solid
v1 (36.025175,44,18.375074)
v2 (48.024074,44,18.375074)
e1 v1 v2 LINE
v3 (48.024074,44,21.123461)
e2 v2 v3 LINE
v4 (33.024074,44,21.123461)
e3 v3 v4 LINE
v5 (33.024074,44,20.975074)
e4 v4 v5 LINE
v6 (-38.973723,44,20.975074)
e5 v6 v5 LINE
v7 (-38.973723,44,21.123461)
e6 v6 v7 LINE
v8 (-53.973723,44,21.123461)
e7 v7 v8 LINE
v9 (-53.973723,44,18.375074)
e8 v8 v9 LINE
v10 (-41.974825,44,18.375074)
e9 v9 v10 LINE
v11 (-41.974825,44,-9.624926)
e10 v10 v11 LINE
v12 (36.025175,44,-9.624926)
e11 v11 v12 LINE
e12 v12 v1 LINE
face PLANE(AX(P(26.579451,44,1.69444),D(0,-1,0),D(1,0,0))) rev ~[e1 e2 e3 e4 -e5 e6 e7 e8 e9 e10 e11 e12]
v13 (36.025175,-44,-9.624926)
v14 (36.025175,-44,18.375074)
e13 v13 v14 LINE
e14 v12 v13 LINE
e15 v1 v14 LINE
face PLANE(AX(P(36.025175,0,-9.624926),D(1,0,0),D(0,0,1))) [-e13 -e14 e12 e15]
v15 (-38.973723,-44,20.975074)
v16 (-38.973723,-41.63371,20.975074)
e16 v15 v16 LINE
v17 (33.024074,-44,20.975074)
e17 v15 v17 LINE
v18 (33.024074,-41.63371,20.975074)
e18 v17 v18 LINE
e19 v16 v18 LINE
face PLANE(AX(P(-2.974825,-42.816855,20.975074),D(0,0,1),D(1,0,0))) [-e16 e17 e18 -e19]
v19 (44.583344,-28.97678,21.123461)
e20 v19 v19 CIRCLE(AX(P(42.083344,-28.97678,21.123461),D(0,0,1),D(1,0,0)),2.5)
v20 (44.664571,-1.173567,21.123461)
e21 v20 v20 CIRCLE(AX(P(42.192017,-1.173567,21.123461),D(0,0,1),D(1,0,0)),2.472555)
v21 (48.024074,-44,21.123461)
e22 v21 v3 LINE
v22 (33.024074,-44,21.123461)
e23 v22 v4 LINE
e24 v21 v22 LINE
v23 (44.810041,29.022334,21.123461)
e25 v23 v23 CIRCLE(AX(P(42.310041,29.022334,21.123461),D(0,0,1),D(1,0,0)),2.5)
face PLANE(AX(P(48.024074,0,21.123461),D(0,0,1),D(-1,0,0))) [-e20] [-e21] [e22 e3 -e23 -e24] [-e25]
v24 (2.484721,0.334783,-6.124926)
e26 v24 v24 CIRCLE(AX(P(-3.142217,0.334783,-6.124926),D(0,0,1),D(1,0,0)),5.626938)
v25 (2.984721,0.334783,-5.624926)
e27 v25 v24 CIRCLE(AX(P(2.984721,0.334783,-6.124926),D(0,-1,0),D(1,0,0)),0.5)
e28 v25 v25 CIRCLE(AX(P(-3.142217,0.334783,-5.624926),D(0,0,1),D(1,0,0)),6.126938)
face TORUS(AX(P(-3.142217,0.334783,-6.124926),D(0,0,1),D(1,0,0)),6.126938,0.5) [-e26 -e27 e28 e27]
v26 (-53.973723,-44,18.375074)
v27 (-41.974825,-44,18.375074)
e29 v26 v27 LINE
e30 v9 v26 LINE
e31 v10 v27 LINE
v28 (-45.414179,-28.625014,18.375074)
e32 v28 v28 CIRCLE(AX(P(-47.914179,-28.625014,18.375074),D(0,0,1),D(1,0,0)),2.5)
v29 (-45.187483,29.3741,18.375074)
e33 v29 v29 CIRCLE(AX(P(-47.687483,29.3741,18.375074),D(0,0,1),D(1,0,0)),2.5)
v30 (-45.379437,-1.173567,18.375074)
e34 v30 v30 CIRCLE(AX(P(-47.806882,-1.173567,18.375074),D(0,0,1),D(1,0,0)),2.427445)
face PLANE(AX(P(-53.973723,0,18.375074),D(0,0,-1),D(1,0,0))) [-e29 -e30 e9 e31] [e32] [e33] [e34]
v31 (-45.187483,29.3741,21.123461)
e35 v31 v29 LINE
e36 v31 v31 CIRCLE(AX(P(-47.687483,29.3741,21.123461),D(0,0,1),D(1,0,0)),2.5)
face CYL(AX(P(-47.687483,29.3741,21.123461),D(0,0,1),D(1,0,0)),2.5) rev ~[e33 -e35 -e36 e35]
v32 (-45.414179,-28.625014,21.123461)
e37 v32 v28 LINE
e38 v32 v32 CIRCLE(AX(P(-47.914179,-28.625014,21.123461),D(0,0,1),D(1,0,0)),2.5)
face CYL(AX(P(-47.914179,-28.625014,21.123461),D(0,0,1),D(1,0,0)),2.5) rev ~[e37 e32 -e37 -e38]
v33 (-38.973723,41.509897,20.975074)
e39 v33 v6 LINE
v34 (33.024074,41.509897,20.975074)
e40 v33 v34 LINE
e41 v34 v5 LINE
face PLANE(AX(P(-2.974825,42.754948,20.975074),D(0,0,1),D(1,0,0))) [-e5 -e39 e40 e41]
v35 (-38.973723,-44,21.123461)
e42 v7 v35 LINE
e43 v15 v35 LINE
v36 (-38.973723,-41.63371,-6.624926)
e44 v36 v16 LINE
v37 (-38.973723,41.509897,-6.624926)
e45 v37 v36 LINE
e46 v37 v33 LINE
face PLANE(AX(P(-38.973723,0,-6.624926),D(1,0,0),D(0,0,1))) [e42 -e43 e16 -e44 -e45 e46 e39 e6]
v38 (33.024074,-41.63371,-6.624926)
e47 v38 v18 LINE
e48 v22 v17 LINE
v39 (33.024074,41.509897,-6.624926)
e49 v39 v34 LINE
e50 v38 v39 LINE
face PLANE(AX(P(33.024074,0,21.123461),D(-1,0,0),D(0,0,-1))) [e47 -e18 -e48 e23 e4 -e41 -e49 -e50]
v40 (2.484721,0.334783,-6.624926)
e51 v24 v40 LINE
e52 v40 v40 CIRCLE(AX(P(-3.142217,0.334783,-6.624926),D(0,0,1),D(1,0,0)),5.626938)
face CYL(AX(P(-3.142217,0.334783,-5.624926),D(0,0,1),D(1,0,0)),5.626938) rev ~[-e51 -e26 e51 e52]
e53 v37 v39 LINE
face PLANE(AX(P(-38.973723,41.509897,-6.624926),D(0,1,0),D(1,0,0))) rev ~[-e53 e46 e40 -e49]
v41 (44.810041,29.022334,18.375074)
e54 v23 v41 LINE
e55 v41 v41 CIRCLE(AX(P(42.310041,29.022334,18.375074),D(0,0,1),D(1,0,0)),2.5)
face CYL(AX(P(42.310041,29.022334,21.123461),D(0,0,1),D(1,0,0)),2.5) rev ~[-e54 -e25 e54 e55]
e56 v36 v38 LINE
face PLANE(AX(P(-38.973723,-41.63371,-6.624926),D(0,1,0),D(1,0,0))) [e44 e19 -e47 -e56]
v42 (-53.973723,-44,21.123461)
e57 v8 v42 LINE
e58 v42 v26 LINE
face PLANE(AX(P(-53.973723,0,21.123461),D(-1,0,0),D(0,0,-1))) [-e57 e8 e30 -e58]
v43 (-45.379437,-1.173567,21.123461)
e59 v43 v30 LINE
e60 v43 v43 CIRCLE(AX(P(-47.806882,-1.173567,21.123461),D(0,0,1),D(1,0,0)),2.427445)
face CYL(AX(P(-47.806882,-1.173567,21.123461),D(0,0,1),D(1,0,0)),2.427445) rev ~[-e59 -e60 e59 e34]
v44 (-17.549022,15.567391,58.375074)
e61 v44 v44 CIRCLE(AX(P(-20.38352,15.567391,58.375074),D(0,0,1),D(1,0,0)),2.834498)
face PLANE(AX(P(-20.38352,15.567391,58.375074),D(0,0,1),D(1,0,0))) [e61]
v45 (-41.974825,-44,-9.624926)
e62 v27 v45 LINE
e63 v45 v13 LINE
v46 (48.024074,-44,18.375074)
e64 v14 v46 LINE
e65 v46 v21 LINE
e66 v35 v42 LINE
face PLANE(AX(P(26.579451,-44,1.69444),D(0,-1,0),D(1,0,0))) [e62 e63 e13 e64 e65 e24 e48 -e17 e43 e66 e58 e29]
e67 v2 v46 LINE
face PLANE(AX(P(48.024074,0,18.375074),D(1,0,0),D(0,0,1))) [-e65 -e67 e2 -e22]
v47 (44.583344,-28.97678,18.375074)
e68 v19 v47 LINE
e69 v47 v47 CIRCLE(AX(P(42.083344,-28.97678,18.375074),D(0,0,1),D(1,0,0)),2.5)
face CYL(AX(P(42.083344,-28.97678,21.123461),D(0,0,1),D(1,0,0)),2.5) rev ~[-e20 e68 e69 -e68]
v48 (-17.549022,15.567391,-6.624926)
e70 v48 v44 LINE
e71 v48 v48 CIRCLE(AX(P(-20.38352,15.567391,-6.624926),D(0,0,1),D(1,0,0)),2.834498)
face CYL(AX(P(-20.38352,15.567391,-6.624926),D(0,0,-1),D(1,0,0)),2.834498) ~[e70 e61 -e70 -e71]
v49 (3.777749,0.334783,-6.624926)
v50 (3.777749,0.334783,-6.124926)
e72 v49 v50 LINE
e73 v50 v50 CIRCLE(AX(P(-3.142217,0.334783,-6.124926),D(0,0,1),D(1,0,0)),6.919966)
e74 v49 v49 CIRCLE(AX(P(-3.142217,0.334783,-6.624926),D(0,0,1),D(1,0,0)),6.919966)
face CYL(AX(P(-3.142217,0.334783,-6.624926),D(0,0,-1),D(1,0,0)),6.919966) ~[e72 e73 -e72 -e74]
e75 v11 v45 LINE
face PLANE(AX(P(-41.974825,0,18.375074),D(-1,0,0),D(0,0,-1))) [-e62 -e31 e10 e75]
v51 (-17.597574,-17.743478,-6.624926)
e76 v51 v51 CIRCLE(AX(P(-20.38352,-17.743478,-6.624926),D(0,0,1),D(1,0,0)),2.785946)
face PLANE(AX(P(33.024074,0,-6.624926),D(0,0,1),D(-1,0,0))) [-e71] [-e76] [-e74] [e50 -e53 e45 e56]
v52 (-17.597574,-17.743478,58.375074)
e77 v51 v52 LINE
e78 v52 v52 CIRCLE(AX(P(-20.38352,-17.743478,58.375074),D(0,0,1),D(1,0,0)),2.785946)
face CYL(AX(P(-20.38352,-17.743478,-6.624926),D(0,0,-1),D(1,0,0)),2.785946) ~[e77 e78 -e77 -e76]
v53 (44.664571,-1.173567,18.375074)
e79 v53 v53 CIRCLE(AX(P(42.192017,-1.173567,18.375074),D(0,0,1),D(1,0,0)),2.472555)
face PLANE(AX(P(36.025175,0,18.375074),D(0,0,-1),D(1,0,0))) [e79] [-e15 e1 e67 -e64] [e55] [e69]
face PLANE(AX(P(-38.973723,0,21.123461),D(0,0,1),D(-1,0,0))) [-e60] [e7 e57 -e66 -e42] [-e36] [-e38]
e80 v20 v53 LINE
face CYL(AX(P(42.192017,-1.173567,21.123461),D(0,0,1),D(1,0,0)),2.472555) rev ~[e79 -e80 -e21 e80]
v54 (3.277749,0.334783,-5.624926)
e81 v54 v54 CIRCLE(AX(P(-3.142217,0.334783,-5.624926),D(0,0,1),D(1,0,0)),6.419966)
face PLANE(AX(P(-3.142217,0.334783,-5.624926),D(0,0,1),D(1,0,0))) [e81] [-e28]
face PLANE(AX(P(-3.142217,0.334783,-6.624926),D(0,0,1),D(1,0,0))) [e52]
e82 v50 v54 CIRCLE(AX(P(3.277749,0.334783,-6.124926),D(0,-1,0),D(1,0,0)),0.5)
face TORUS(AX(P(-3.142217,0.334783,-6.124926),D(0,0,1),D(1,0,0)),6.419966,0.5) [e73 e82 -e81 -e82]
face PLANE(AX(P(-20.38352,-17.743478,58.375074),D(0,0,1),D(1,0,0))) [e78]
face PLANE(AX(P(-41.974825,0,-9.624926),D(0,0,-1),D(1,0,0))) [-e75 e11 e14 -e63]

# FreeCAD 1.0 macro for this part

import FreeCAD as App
import Part
import Sketcher
Q = App.Units.Quantity


def edges_at(feature, points):
    """Names of the edges that pass closest to the given points."""
    edges = feature.Shape.Edges
    near = lambda p: min(range(len(edges)), key=lambda i: edges[i].distToShape(Part.Vertex(*p))[0])
    return sorted({f"Edge{near(p) + 1}" for p in points})

doc = App.newDocument("Part")
body = doc.addObject("PartDesign::Body", "Body")

# Sketch on XZ plane
sketch1 = body.newObject("Sketcher::SketchObject", "Sketch")
sketch1.AttachmentSupport = (doc.getObject("XZ_Plane"), [""])
sketch1.MapMode = "FlatFace"
sketch1.addGeometry(Part.LineSegment(App.Vector(33, -6.6, 0), App.Vector(-39, -6.6, 0)), False)
sketch1.addGeometry(Part.LineSegment(App.Vector(-39, -6.6, 0), App.Vector(-39, 21.1, 0)), False)
sketch1.addGeometry(Part.LineSegment(App.Vector(-39, 21.1, 0), App.Vector(-54, 21.1, 0)), False)
sketch1.addGeometry(Part.LineSegment(App.Vector(-54, 21.1, 0), App.Vector(-54, 18.4, 0)), False)
sketch1.addGeometry(Part.LineSegment(App.Vector(-54, 18.4, 0), App.Vector(-42, 18.4, 0)), False)
sketch1.addGeometry(Part.LineSegment(App.Vector(-42, 18.4, 0), App.Vector(-42, -9.6, 0)), False)
sketch1.addGeometry(Part.LineSegment(App.Vector(-42, -9.6, 0), App.Vector(36, -9.6, 0)), False)
sketch1.addGeometry(Part.LineSegment(App.Vector(36, -9.6, 0), App.Vector(36, 18.4, 0)), False)
sketch1.addGeometry(Part.LineSegment(App.Vector(36, 18.4, 0), App.Vector(48, 18.4, 0)), False)
sketch1.addGeometry(Part.LineSegment(App.Vector(48, 18.4, 0), App.Vector(48, 21.1, 0)), False)
sketch1.addGeometry(Part.LineSegment(App.Vector(48, 21.1, 0), App.Vector(33, 21.1, 0)), False)
sketch1.addGeometry(Part.LineSegment(App.Vector(33, 21.1, 0), App.Vector(33, -6.6, 0)), False)
sketch1.addConstraint(Sketcher.Constraint("Coincident", 0, 2, 1, 1))
sketch1.addConstraint(Sketcher.Constraint("Coincident", 1, 2, 2, 1))
sketch1.addConstraint(Sketcher.Constraint("Coincident", 2, 2, 3, 1))
sketch1.addConstraint(Sketcher.Constraint("Coincident", 3, 2, 4, 1))
sketch1.addConstraint(Sketcher.Constraint("Coincident", 4, 2, 5, 1))
sketch1.addConstraint(Sketcher.Constraint("Coincident", 5, 2, 6, 1))
sketch1.addConstraint(Sketcher.Constraint("Coincident", 6, 2, 7, 1))
sketch1.addConstraint(Sketcher.Constraint("Coincident", 7, 2, 8, 1))
sketch1.addConstraint(Sketcher.Constraint("Coincident", 8, 2, 9, 1))
sketch1.addConstraint(Sketcher.Constraint("Coincident", 9, 2, 10, 1))
sketch1.addConstraint(Sketcher.Constraint("Coincident", 10, 2, 11, 1))
sketch1.addConstraint(Sketcher.Constraint("Coincident", 11, 2, 0, 1))
sketch1.addConstraint(Sketcher.Constraint("Horizontal", 0))
sketch1.addConstraint(Sketcher.Constraint("Vertical", 1))
sketch1.addConstraint(Sketcher.Constraint("Horizontal", 2))
sketch1.addConstraint(Sketcher.Constraint("Vertical", 3))
sketch1.addConstraint(Sketcher.Constraint("Horizontal", 4))
sketch1.addConstraint(Sketcher.Constraint("Vertical", 5))
sketch1.addConstraint(Sketcher.Constraint("Horizontal", 6))
sketch1.addConstraint(Sketcher.Constraint("Vertical", 7))
sketch1.addConstraint(Sketcher.Constraint("Horizontal", 8))
sketch1.addConstraint(Sketcher.Constraint("Vertical", 9))
sketch1.addConstraint(Sketcher.Constraint("Horizontal", 10))
sketch1.addConstraint(Sketcher.Constraint("Vertical", 11))
sketch1.addConstraint(Sketcher.Constraint("Horizontal", 4, 2, 7, 2))
sketch1.addConstraint(Sketcher.Constraint("Horizontal", 2, 2, 9, 2))
sketch1.addConstraint(Sketcher.Constraint("Equal", 4, 8))
sketch1.addConstraint(Sketcher.Constraint("Equal", 2, 10))
sketch1.addConstraint(Sketcher.Constraint("DistanceX", 2, 2, 2, 1, Q("15 mm")))
sketch1.addConstraint(Sketcher.Constraint("DistanceX", 6, 1, 6, 2, Q("78 mm")))
sketch1.addConstraint(Sketcher.Constraint("DistanceY", 5, 2, 5, 1, Q("28 mm")))
sketch1.addConstraint(Sketcher.Constraint("DistanceY", 0, 2, 3, 2, Q("25 mm")))
sketch1.addConstraint(Sketcher.Constraint("DistanceX", 4, 1, 4, 2, Q("11.998899 mm")))
sketch1.addConstraint(Sketcher.Constraint("DistanceY", 1, 1, 1, 2, Q("27.748387 mm")))
sketch1.addConstraint(Sketcher.Constraint("DistanceY", -1, 1, 1, 2, Q("21.123461 mm")))
sketch1.addConstraint(Sketcher.Constraint("DistanceX", 0, 2, -1, 1, Q("38.973723 mm")))
pad1 = body.newObject("PartDesign::Pad", "Pad")
pad1.Profile = sketch1
pad1.Length = 88
pad1.Midplane = True

# Sketch on XY plane
sketch2 = body.newObject("Sketcher::SketchObject", "Sketch001")
sketch2.AttachmentSupport = (doc.getObject("XY_Plane"), [""])
sketch2.MapMode = "FlatFace"
sketch2.AttachmentOffset = App.Placement(App.Vector(0, 0, 21.123461), App.Rotation())
sketch2.addGeometry(Part.Circle(App.Vector(42.1, -29, 0), App.Vector(0, 0, 1), 2.5), False)
sketch2.addGeometry(Part.Circle(App.Vector(42.3, 29, 0), App.Vector(0, 0, 1), 2.5), False)
sketch2.addGeometry(Part.Circle(App.Vector(-47.7, 29.4, 0), App.Vector(0, 0, 1), 2.5), False)
sketch2.addGeometry(Part.Circle(App.Vector(-47.9, -28.6, 0), App.Vector(0, 0, 1), 2.5), False)
sketch2.addGeometry(Part.Circle(App.Vector(42.2, -1.2, 0), App.Vector(0, 0, 1), 2.5), False)
sketch2.addGeometry(Part.Circle(App.Vector(-47.8, -1.2, 0), App.Vector(0, 0, 1), 2.4), False)
sketch2.addConstraint(Sketcher.Constraint("Equal", 0, 1))
sketch2.addConstraint(Sketcher.Constraint("Equal", 1, 2))
sketch2.addConstraint(Sketcher.Constraint("Equal", 2, 3))
sketch2.addConstraint(Sketcher.Constraint("Horizontal", 4, 3, 5, 3))
sketch2.addConstraint(Sketcher.Constraint("Diameter", 0, Q("5 mm")))
sketch2.addConstraint(Sketcher.Constraint("Diameter", 4, Q("4.94511 mm")))
sketch2.addConstraint(Sketcher.Constraint("Diameter", 5, Q("4.85489 mm")))
sketch2.addConstraint(Sketcher.Constraint("DistanceY", -1, 1, 2, 3, Q("29.3741 mm")))
sketch2.addConstraint(Sketcher.Constraint("DistanceY", 4, 3, 1, 3, Q("30.195901 mm")))
sketch2.addConstraint(Sketcher.Constraint("DistanceX", 2, 3, 4, 3, Q("89.879499 mm")))
sketch2.addConstraint(Sketcher.Constraint("DistanceX", 5, 3, 2, 3, Q("0.119399 mm")))
sketch2.addConstraint(Sketcher.Constraint("DistanceY", 0, 3, -1, 1, Q("28.97678 mm")))
sketch2.addConstraint(Sketcher.Constraint("DistanceX", -1, 1, 1, 3, Q("42.310041 mm")))
sketch2.addConstraint(Sketcher.Constraint("DistanceX", 3, 3, -1, 1, Q("47.914179 mm")))
sketch2.addConstraint(Sketcher.Constraint("DistanceX", 5, 3, -1, 1, Q("47.806882 mm")))
sketch2.addConstraint(Sketcher.Constraint("DistanceX", -1, 1, 0, 3, Q("42.083344 mm")))
sketch2.addConstraint(Sketcher.Constraint("DistanceY", -1, 1, 1, 3, Q("29.022334 mm")))
sketch2.addConstraint(Sketcher.Constraint("DistanceY", 3, 3, -1, 1, Q("28.625014 mm")))
pocket1 = body.newObject("PartDesign::Pocket", "Pocket")
pocket1.Profile = sketch2
pocket1.Type = "ThroughAll"

# Sketch on XY plane
sketch3 = body.newObject("Sketcher::SketchObject", "Sketch002")
sketch3.AttachmentSupport = (doc.getObject("XY_Plane"), [""])
sketch3.MapMode = "FlatFace"
sketch3.AttachmentOffset = App.Placement(App.Vector(0, 0, -6.624926), App.Rotation())
sketch3.addGeometry(Part.LineSegment(App.Vector(-39, 44, 0), App.Vector(-39, 41.5, 0)), False)
sketch3.addGeometry(Part.LineSegment(App.Vector(-39, 41.5, 0), App.Vector(33, 41.5, 0)), False)
sketch3.addGeometry(Part.LineSegment(App.Vector(33, 41.5, 0), App.Vector(33, 44, 0)), False)
sketch3.addGeometry(Part.LineSegment(App.Vector(33, 44, 0), App.Vector(-39, 44, 0)), False)
sketch3.addGeometry(Part.LineSegment(App.Vector(-39, -41.6, 0), App.Vector(-39, -44, 0)), False)
sketch3.addGeometry(Part.LineSegment(App.Vector(-39, -44, 0), App.Vector(33, -44, 0)), False)
sketch3.addGeometry(Part.LineSegment(App.Vector(33, -44, 0), App.Vector(33, -41.6, 0)), False)
sketch3.addGeometry(Part.LineSegment(App.Vector(33, -41.6, 0), App.Vector(-39, -41.6, 0)), False)
sketch3.addConstraint(Sketcher.Constraint("Coincident", 0, 2, 1, 1))
sketch3.addConstraint(Sketcher.Constraint("Coincident", 1, 2, 2, 1))
sketch3.addConstraint(Sketcher.Constraint("Coincident", 2, 2, 3, 1))
sketch3.addConstraint(Sketcher.Constraint("Coincident", 3, 2, 0, 1))
sketch3.addConstraint(Sketcher.Constraint("Coincident", 4, 2, 5, 1))
sketch3.addConstraint(Sketcher.Constraint("Coincident", 5, 2, 6, 1))
sketch3.addConstraint(Sketcher.Constraint("Coincident", 6, 2, 7, 1))
sketch3.addConstraint(Sketcher.Constraint("Coincident", 7, 2, 4, 1))
sketch3.addConstraint(Sketcher.Constraint("Vertical", 0))
sketch3.addConstraint(Sketcher.Constraint("Horizontal", 1))
sketch3.addConstraint(Sketcher.Constraint("Vertical", 2))
sketch3.addConstraint(Sketcher.Constraint("Horizontal", 3))
sketch3.addConstraint(Sketcher.Constraint("Vertical", 4))
sketch3.addConstraint(Sketcher.Constraint("Horizontal", 5))
sketch3.addConstraint(Sketcher.Constraint("Vertical", 6))
sketch3.addConstraint(Sketcher.Constraint("Horizontal", 7))
sketch3.addConstraint(Sketcher.Constraint("Symmetric", 3, 2, 4, 2, -1))
sketch3.addConstraint(Sketcher.Constraint("Vertical", 2, 2, 5, 2))
sketch3.addConstraint(Sketcher.Constraint("DistanceY", -1, 1, 2, 2, Q("44 mm")))
sketch3.addConstraint(Sketcher.Constraint("DistanceY", 4, 2, 4, 1, Q("2.36629 mm")))
sketch3.addConstraint(Sketcher.Constraint("DistanceX", 1, 1, 1, 2, Q("71.997797 mm")))
sketch3.addConstraint(Sketcher.Constraint("DistanceY", 0, 2, 0, 1, Q("2.490103 mm")))
sketch3.addConstraint(Sketcher.Constraint("DistanceX", 0, 2, -1, 1, Q("38.973723 mm")))
pad2 = body.newObject("PartDesign::Pad", "Pad001")
pad2.Profile = sketch3
pad2.Length = 27.6

# Sketch on XY plane
sketch4 = body.newObject("Sketcher::SketchObject", "Sketch003")
sketch4.AttachmentSupport = (doc.getObject("XY_Plane"), [""])
sketch4.MapMode = "FlatFace"
sketch4.AttachmentOffset = App.Placement(App.Vector(0, 0, -6.624926), App.Rotation())
sketch4.addGeometry(Part.Circle(App.Vector(-3, 0, 0), App.Vector(0, 0, 1), 7), False)
sketch4.addConstraint(Sketcher.Constraint("Diameter", 0, Q("13.839931 mm")))
sketch4.addConstraint(Sketcher.Constraint("DistanceX", 0, 3, -1, 1, Q("3.142217 mm")))
sketch4.addConstraint(Sketcher.Constraint("DistanceY", -1, 1, 0, 3, Q("0.334783 mm")))
pad3 = body.newObject("PartDesign::Pad", "Pad002")
pad3.Profile = sketch4
pad3.Length = 1

# Sketch on XY plane
sketch5 = body.newObject("Sketcher::SketchObject", "Sketch004")
sketch5.AttachmentSupport = (doc.getObject("XY_Plane"), [""])
sketch5.MapMode = "FlatFace"
sketch5.AttachmentOffset = App.Placement(App.Vector(0, 0, -5.624926), App.Rotation())
sketch5.addGeometry(Part.Circle(App.Vector(-3, 0, 0), App.Vector(0, 0, 1), 6), False)
sketch5.addConstraint(Sketcher.Constraint("Diameter", 0, Q("11.253876 mm")))
sketch5.addConstraint(Sketcher.Constraint("DistanceX", 0, 3, -1, 1, Q("3.142217 mm")))
sketch5.addConstraint(Sketcher.Constraint("DistanceY", -1, 1, 0, 3, Q("0.334783 mm")))
pocket2 = body.newObject("PartDesign::Pocket", "Pocket001")
pocket2.Profile = sketch5
pocket2.Length = 1
doc.recompute()

fillet = body.newObject("PartDesign::Fillet", "Fillet")
fillet.Base = (pocket2, edges_at(pocket2, [(-10.062, 0.335, -5.625), (-8.769, 0.335, -5.625)]))
fillet.Radius = 0.5

# Sketch on XY plane
sketch6 = body.newObject("Sketcher::SketchObject", "Sketch005")
sketch6.AttachmentSupport = (doc.getObject("XY_Plane"), [""])
sketch6.MapMode = "FlatFace"
sketch6.AttachmentOffset = App.Placement(App.Vector(0, 0, -6.624926), App.Rotation())
sketch6.addGeometry(Part.Circle(App.Vector(-20.4, 15.6, 0), App.Vector(0, 0, 1), 2.8), False)
sketch6.addGeometry(Part.Circle(App.Vector(-20.4, -17.7, 0), App.Vector(0, 0, 1), 2.8), False)
sketch6.addConstraint(Sketcher.Constraint("Vertical", 0, 3, 1, 3))
sketch6.addConstraint(Sketcher.Constraint("Diameter", 0, Q("5.668996 mm")))
sketch6.addConstraint(Sketcher.Constraint("Diameter", 1, Q("5.571893 mm")))
sketch6.addConstraint(Sketcher.Constraint("DistanceX", 0, 3, -1, 1, Q("20.38352 mm")))
sketch6.addConstraint(Sketcher.Constraint("DistanceY", -1, 1, 0, 3, Q("15.567391 mm")))
sketch6.addConstraint(Sketcher.Constraint("DistanceY", 1, 3, 0, 3, Q("33.310869 mm")))
pad4 = body.newObject("PartDesign::Pad", "Pad003")
pad4.Profile = sketch6
pad4.Length = 65

doc.recompute()
